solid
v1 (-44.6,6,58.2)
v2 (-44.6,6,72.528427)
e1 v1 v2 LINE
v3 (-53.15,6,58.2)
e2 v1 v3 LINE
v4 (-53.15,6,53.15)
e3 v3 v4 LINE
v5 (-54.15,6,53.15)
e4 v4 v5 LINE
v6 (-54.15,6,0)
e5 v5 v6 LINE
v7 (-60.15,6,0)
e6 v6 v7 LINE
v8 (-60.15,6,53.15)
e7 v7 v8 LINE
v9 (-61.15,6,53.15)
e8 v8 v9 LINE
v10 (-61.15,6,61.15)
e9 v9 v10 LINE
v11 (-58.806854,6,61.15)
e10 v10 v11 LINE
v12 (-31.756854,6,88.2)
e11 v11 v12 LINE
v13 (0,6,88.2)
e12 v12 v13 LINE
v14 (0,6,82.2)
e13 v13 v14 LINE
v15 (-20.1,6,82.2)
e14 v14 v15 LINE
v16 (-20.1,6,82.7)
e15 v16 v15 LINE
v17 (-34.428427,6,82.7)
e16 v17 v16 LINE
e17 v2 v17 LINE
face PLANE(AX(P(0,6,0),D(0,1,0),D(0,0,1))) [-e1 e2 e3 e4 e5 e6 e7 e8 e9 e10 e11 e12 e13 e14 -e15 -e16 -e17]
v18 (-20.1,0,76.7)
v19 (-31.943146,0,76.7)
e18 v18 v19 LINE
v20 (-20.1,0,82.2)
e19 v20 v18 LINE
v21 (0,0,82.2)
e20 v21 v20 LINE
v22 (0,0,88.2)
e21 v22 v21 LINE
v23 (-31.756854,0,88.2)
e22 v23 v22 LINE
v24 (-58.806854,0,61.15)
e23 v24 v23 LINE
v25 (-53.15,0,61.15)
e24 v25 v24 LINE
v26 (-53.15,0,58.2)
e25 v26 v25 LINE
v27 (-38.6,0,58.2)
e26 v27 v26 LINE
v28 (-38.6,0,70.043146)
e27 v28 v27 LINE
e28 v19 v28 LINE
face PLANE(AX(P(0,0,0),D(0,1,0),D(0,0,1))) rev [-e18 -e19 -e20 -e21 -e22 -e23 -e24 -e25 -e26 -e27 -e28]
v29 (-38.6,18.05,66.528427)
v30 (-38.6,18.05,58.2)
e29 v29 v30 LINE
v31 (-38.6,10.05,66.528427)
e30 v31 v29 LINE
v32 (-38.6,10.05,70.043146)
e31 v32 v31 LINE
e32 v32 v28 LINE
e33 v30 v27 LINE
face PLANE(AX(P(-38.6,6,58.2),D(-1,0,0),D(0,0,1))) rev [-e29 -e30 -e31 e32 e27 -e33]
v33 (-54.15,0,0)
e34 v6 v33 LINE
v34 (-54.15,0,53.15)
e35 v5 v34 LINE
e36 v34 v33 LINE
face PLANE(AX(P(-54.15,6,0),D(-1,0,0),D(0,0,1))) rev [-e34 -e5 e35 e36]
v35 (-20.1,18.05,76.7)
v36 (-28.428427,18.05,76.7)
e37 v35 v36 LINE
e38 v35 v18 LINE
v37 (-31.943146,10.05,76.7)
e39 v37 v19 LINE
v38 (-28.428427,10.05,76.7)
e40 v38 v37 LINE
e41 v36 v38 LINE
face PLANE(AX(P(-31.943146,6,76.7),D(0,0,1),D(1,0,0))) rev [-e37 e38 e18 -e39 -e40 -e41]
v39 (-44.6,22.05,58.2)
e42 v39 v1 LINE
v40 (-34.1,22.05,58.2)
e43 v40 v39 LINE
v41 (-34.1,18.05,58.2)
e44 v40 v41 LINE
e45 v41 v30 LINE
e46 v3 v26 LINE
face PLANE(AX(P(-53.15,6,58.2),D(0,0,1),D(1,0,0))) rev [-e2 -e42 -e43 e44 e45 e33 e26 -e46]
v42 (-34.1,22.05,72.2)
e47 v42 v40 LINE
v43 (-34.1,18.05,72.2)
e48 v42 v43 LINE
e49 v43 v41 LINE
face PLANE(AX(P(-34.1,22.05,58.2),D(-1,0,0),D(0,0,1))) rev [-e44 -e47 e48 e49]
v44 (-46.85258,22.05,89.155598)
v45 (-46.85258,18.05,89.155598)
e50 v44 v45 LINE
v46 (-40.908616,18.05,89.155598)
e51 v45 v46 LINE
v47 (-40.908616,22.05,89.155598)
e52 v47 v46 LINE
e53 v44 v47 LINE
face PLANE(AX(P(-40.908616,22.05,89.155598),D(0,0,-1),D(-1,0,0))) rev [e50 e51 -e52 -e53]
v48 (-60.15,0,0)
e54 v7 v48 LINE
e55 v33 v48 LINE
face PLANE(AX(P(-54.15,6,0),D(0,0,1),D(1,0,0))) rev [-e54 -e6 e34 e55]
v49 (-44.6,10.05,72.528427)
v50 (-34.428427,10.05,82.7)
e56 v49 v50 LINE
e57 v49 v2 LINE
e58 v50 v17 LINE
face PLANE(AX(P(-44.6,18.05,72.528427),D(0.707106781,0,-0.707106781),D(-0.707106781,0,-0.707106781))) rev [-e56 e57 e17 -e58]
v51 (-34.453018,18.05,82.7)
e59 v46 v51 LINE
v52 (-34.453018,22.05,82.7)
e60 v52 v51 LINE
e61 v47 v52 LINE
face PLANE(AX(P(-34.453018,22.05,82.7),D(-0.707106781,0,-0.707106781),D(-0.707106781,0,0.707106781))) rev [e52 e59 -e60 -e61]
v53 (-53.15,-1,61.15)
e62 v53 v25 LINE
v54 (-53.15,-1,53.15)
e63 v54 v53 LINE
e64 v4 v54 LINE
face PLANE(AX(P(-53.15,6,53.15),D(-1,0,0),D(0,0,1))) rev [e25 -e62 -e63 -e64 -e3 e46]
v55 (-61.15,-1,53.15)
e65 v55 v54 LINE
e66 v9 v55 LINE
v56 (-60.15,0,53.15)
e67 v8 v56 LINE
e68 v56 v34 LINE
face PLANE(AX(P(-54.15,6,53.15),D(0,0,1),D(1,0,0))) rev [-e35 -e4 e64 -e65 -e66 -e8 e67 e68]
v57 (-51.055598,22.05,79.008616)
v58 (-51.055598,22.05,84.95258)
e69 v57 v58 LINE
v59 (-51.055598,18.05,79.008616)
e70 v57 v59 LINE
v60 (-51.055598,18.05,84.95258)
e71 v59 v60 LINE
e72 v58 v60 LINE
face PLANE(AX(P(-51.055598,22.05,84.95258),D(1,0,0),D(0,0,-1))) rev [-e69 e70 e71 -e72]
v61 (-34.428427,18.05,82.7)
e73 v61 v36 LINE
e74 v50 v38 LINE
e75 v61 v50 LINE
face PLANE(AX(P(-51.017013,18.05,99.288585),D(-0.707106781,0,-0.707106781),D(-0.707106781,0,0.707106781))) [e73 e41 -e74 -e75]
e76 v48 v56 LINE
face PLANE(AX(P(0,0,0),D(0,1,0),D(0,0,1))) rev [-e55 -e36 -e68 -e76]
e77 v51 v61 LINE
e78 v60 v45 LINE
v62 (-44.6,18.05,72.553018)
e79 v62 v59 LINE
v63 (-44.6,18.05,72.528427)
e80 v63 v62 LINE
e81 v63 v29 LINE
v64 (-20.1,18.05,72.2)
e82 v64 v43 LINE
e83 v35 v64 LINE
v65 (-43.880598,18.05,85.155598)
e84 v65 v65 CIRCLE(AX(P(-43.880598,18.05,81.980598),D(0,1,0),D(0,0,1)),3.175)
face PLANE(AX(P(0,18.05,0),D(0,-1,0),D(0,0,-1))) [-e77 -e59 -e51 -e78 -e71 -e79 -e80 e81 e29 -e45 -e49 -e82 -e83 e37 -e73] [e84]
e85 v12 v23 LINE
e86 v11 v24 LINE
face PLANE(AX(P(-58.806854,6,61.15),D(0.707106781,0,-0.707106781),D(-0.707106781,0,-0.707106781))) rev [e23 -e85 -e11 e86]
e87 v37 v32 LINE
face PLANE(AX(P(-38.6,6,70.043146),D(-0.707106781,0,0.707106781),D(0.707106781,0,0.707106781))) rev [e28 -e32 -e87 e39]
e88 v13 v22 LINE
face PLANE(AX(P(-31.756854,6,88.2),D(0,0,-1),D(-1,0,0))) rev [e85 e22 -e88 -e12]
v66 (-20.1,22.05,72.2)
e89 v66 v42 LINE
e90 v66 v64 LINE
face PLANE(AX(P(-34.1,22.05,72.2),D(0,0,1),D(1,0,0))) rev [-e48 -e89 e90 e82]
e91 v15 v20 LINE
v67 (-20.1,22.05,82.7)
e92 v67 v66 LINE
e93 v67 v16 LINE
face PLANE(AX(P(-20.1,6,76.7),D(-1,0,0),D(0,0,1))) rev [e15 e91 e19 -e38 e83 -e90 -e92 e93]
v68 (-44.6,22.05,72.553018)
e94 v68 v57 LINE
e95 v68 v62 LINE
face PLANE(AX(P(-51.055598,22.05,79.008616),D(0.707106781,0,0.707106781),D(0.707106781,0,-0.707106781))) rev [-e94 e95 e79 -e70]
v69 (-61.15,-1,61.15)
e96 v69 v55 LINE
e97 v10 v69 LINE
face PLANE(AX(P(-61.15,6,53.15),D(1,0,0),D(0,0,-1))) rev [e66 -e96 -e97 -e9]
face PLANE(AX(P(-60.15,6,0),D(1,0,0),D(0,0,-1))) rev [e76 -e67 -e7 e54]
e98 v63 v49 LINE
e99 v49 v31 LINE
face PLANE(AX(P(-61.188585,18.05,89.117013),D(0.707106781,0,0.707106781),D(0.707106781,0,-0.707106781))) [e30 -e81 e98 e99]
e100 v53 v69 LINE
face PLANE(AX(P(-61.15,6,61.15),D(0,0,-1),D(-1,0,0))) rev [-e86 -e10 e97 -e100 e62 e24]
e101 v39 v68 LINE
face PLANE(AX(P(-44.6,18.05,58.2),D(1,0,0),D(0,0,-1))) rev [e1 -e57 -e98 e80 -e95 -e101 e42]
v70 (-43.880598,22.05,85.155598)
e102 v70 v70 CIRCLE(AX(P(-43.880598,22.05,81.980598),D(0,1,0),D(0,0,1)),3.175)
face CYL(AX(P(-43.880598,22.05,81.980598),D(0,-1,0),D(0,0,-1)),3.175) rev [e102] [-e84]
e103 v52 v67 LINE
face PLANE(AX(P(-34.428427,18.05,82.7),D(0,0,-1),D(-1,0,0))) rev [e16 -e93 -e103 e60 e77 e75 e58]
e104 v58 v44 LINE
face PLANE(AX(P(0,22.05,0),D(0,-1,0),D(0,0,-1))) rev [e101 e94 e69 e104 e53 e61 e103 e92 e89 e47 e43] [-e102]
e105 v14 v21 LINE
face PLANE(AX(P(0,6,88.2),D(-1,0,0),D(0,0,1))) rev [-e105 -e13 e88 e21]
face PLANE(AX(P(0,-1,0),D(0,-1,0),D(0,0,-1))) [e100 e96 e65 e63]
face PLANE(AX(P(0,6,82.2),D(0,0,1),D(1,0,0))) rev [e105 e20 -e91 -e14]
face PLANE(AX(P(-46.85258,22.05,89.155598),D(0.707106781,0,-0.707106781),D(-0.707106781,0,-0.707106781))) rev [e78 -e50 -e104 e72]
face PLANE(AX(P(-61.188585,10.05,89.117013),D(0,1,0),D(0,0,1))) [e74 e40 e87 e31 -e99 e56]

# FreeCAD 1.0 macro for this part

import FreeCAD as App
import Part
import Sketcher
Q = App.Units.Quantity

doc = App.newDocument("Part")
body = doc.addObject("PartDesign::Body", "Body")

# Sketch on XZ plane
sketch1 = body.newObject("Sketcher::SketchObject", "Sketch")
sketch1.AttachmentSupport = (doc.getObject("XZ_Plane"), [""])
sketch1.MapMode = "FlatFace"
sketch1.addGeometry(Part.LineSegment(App.Vector(-54.15, 0, 0), App.Vector(-60.15, 0, 0)), False)
sketch1.addGeometry(Part.LineSegment(App.Vector(-60.15, 0, 0), App.Vector(-60.15, 53.15, 0)), False)
sketch1.addGeometry(Part.LineSegment(App.Vector(-60.15, 53.15, 0), App.Vector(-61.15, 53.15, 0)), False)
sketch1.addGeometry(Part.LineSegment(App.Vector(-61.15, 53.15, 0), App.Vector(-61.15, 61.15, 0)), False)
sketch1.addGeometry(Part.LineSegment(App.Vector(-61.15, 61.15, 0), App.Vector(-58.806854, 61.15, 0)), False)
sketch1.addGeometry(Part.LineSegment(App.Vector(-58.806854, 61.15, 0), App.Vector(-31.756854, 88.2, 0)), False)
sketch1.addGeometry(Part.LineSegment(App.Vector(-31.756854, 88.2, 0), App.Vector(0, 88.2, 0)), False)
sketch1.addGeometry(Part.LineSegment(App.Vector(0, 88.2, 0), App.Vector(0, 82.2, 0)), False)
sketch1.addGeometry(Part.LineSegment(App.Vector(0, 82.2, 0), App.Vector(-20.1, 82.2, 0)), False)
sketch1.addGeometry(Part.LineSegment(App.Vector(-20.1, 82.2, 0), App.Vector(-20.1, 76.7, 0)), False)
sketch1.addGeometry(Part.LineSegment(App.Vector(-20.1, 76.7, 0), App.Vector(-31.943146, 76.7, 0)), False)
sketch1.addGeometry(Part.LineSegment(App.Vector(-31.943146, 76.7, 0), App.Vector(-38.6, 70.043146, 0)), False)
sketch1.addGeometry(Part.LineSegment(App.Vector(-38.6, 70.043146, 0), App.Vector(-38.6, 58.2, 0)), False)
sketch1.addGeometry(Part.LineSegment(App.Vector(-38.6, 58.2, 0), App.Vector(-53.15, 58.2, 0)), False)
sketch1.addGeometry(Part.LineSegment(App.Vector(-53.15, 58.2, 0), App.Vector(-53.15, 53.15, 0)), False)
sketch1.addGeometry(Part.LineSegment(App.Vector(-53.15, 53.15, 0), App.Vector(-54.15, 53.15, 0)), False)
sketch1.addGeometry(Part.LineSegment(App.Vector(-54.15, 53.15, 0), App.Vector(-54.15, 0, 0)), False)
sketch1.addConstraint(Sketcher.Constraint("Coincident", 0, 2, 1, 1))
sketch1.addConstraint(Sketcher.Constraint("Coincident", 1, 2, 2, 1))
sketch1.addConstraint(Sketcher.Constraint("Coincident", 2, 2, 3, 1))
sketch1.addConstraint(Sketcher.Constraint("Coincident", 3, 2, 4, 1))
sketch1.addConstraint(Sketcher.Constraint("Coincident", 4, 2, 5, 1))
sketch1.addConstraint(Sketcher.Constraint("Coincident", 5, 2, 6, 1))
sketch1.addConstraint(Sketcher.Constraint("Coincident", 6, 2, 7, 1))
sketch1.addConstraint(Sketcher.Constraint("Coincident", 7, 2, 8, 1))
sketch1.addConstraint(Sketcher.Constraint("Coincident", 8, 2, 9, 1))
sketch1.addConstraint(Sketcher.Constraint("Coincident", 9, 2, 10, 1))
sketch1.addConstraint(Sketcher.Constraint("Coincident", 10, 2, 11, 1))
sketch1.addConstraint(Sketcher.Constraint("Coincident", 11, 2, 12, 1))
sketch1.addConstraint(Sketcher.Constraint("Coincident", 12, 2, 13, 1))
sketch1.addConstraint(Sketcher.Constraint("Coincident", 13, 2, 14, 1))
sketch1.addConstraint(Sketcher.Constraint("Coincident", 14, 2, 15, 1))
sketch1.addConstraint(Sketcher.Constraint("Coincident", 15, 2, 16, 1))
sketch1.addConstraint(Sketcher.Constraint("Coincident", 16, 2, 0, 1))
sketch1.addConstraint(Sketcher.Constraint("Horizontal", 0))
sketch1.addConstraint(Sketcher.Constraint("Vertical", 1))
sketch1.addConstraint(Sketcher.Constraint("Horizontal", 2))
sketch1.addConstraint(Sketcher.Constraint("Vertical", 3))
sketch1.addConstraint(Sketcher.Constraint("Horizontal", 4))
sketch1.addConstraint(Sketcher.Constraint("Horizontal", 6))
sketch1.addConstraint(Sketcher.Constraint("Vertical", 7))
sketch1.addConstraint(Sketcher.Constraint("Horizontal", 8))
sketch1.addConstraint(Sketcher.Constraint("Vertical", 9))
sketch1.addConstraint(Sketcher.Constraint("Horizontal", 10))
sketch1.addConstraint(Sketcher.Constraint("Vertical", 12))
sketch1.addConstraint(Sketcher.Constraint("Horizontal", 13))
sketch1.addConstraint(Sketcher.Constraint("Vertical", 14))
sketch1.addConstraint(Sketcher.Constraint("Horizontal", 15))
sketch1.addConstraint(Sketcher.Constraint("Vertical", 16))
sketch1.addConstraint(Sketcher.Constraint("PointOnObject", 0, 2, -1))
sketch1.addConstraint(Sketcher.Constraint("PointOnObject", 6, 2, -2))
sketch1.addConstraint(Sketcher.Constraint("Parallel", 5, 11))
sketch1.addConstraint(Sketcher.Constraint("Horizontal", 2, 2, 14, 2))
sketch1.addConstraint(Sketcher.Constraint("Equal", 2, 15))
sketch1.addConstraint(Sketcher.Constraint("Equal", 0, 7))
sketch1.addConstraint(Sketcher.Constraint("Equal", 10, 12))
sketch1.addConstraint(Sketcher.Constraint("DistanceX", 0, 2, 0, 1, 6.0))
sketch1.addConstraint(Sketcher.Constraint("DistanceX", 2, 2, 2, 1, 1.0))
sketch1.addConstraint(Sketcher.Constraint("DistanceY", 3, 1, 3, 2, 8.0))
sketch1.addConstraint(Sketcher.Constraint("Angle", 5, Q("45 deg")))
sketch1.addConstraint(Sketcher.Constraint("DistanceX", 8, 2, 8, 1, 20.1))
sketch1.addConstraint(Sketcher.Constraint("DistanceY", 9, 2, 9, 1, 5.5))
sketch1.addConstraint(Sketcher.Constraint("DistanceX", 13, 2, 13, 1, 14.55))
sketch1.addConstraint(Sketcher.Constraint("DistanceY", 1, 1, 1, 2, 53.15))
sketch1.addConstraint(Sketcher.Constraint("DistanceY", 14, 2, 14, 1, 5.05))
sketch1.addConstraint(Sketcher.Constraint("DistanceY", -1, 1, 5, 2, 88.2))
sketch1.addConstraint(Sketcher.Constraint("DistanceX", 4, 1, 4, 2, 2.343146))
sketch1.addConstraint(Sketcher.Constraint("DistanceX", 10, 2, 10, 1, 11.843146))
pad1 = body.newObject("PartDesign::Pad", "Pad")
pad1.Profile = sketch1
pad1.Length = 6
pad1.Reversed = True

# Sketch on XZ plane
sketch2 = body.newObject("Sketcher::SketchObject", "Sketch001")
sketch2.AttachmentSupport = (doc.getObject("XZ_Plane"), [""])
sketch2.MapMode = "FlatFace"
sketch2.addGeometry(Part.LineSegment(App.Vector(-53.15, 53.15, 0), App.Vector(-53.15, 61.15, 0)), False)
sketch2.addGeometry(Part.LineSegment(App.Vector(-53.15, 61.15, 0), App.Vector(-61.15, 61.15, 0)), False)
sketch2.addGeometry(Part.LineSegment(App.Vector(-61.15, 61.15, 0), App.Vector(-61.15, 53.15, 0)), False)
sketch2.addGeometry(Part.LineSegment(App.Vector(-61.15, 53.15, 0), App.Vector(-53.15, 53.15, 0)), False)
sketch2.addConstraint(Sketcher.Constraint("Coincident", 0, 2, 1, 1))
sketch2.addConstraint(Sketcher.Constraint("Coincident", 1, 2, 2, 1))
sketch2.addConstraint(Sketcher.Constraint("Coincident", 2, 2, 3, 1))
sketch2.addConstraint(Sketcher.Constraint("Coincident", 3, 2, 0, 1))
sketch2.addConstraint(Sketcher.Constraint("Vertical", 0))
sketch2.addConstraint(Sketcher.Constraint("Horizontal", 1))
sketch2.addConstraint(Sketcher.Constraint("Vertical", 2))
sketch2.addConstraint(Sketcher.Constraint("Horizontal", 3))
sketch2.addConstraint(Sketcher.Constraint("Equal", 3, 0))
sketch2.addConstraint(Sketcher.Constraint("DistanceX", 1, 2, 1, 1, 8.0))
sketch2.addConstraint(Sketcher.Constraint("DistanceX", 0, 2, -1, 1, 53.15))
sketch2.addConstraint(Sketcher.Constraint("DistanceY", -1, 1, 0, 2, 61.15))
pad2 = body.newObject("PartDesign::Pad", "Pad001")
pad2.Profile = sketch2
pad2.Length = 1

# Sketch on XZ plane
sketch3 = body.newObject("Sketcher::SketchObject", "Sketch002")
sketch3.AttachmentSupport = (doc.getObject("XZ_Plane"), [""])
sketch3.MapMode = "FlatFace"
sketch3.AttachmentOffset = App.Placement(App.Vector(0, 0, -6), App.Rotation())
sketch3.addGeometry(Part.LineSegment(App.Vector(-38.6, 58.2, 0), App.Vector(-44.6, 58.2, 0)), False)
sketch3.addGeometry(Part.LineSegment(App.Vector(-44.6, 58.2, 0), App.Vector(-44.6, 72.528427, 0)), False)
sketch3.addGeometry(Part.LineSegment(App.Vector(-44.6, 72.528427, 0), App.Vector(-34.428427, 82.7, 0)), False)
sketch3.addGeometry(Part.LineSegment(App.Vector(-34.428427, 82.7, 0), App.Vector(-20.1, 82.7, 0)), False)
sketch3.addGeometry(Part.LineSegment(App.Vector(-20.1, 82.7, 0), App.Vector(-20.1, 76.7, 0)), False)
sketch3.addGeometry(Part.LineSegment(App.Vector(-20.1, 76.7, 0), App.Vector(-31.943146, 76.7, 0)), False)
sketch3.addGeometry(Part.LineSegment(App.Vector(-31.943146, 76.7, 0), App.Vector(-38.6, 70.043146, 0)), False)
sketch3.addGeometry(Part.LineSegment(App.Vector(-38.6, 70.043146, 0), App.Vector(-38.6, 58.2, 0)), False)
sketch3.addConstraint(Sketcher.Constraint("Coincident", 0, 2, 1, 1))
sketch3.addConstraint(Sketcher.Constraint("Coincident", 1, 2, 2, 1))
sketch3.addConstraint(Sketcher.Constraint("Coincident", 2, 2, 3, 1))
sketch3.addConstraint(Sketcher.Constraint("Coincident", 3, 2, 4, 1))
sketch3.addConstraint(Sketcher.Constraint("Coincident", 4, 2, 5, 1))
sketch3.addConstraint(Sketcher.Constraint("Coincident", 5, 2, 6, 1))
sketch3.addConstraint(Sketcher.Constraint("Coincident", 6, 2, 7, 1))
sketch3.addConstraint(Sketcher.Constraint("Coincident", 7, 2, 0, 1))
sketch3.addConstraint(Sketcher.Constraint("Horizontal", 0))
sketch3.addConstraint(Sketcher.Constraint("Vertical", 1))
sketch3.addConstraint(Sketcher.Constraint("Horizontal", 3))
sketch3.addConstraint(Sketcher.Constraint("Vertical", 4))
sketch3.addConstraint(Sketcher.Constraint("Horizontal", 5))
sketch3.addConstraint(Sketcher.Constraint("Vertical", 7))
sketch3.addConstraint(Sketcher.Constraint("Parallel", 2, 6))
sketch3.addConstraint(Sketcher.Constraint("Equal", 3, 1))
sketch3.addConstraint(Sketcher.Constraint("Equal", 0, 4))
sketch3.addConstraint(Sketcher.Constraint("Equal", 5, 7))
sketch3.addConstraint(Sketcher.Constraint("DistanceX", 0, 2, 0, 1, 6.0))
sketch3.addConstraint(Sketcher.Constraint("DistanceX", 0, 2, -1, 1, 44.6))
sketch3.addConstraint(Sketcher.Constraint("DistanceY", -1, 1, 0, 2, 58.2))
sketch3.addConstraint(Sketcher.Constraint("DistanceY", -1, 1, 2, 2, 82.7))
sketch3.addConstraint(Sketcher.Constraint("DistanceX", 3, 1, 3, 2, 14.328427))
sketch3.addConstraint(Sketcher.Constraint("DistanceX", 5, 2, 5, 1, 11.843146))
pad3 = body.newObject("PartDesign::Pad", "Pad002")
pad3.Profile = sketch3
pad3.Length = 12.05
pad3.Reversed = True

# Sketch on XZ plane
sketch4 = body.newObject("Sketcher::SketchObject", "Sketch003")
sketch4.AttachmentSupport = (doc.getObject("XZ_Plane"), [""])
sketch4.MapMode = "FlatFace"
sketch4.AttachmentOffset = App.Placement(App.Vector(0, 0, -18.05), App.Rotation())
sketch4.addGeometry(Part.LineSegment(App.Vector(-34.1, 58.2, 0), App.Vector(-44.6, 58.2, 0)), False)
sketch4.addGeometry(Part.LineSegment(App.Vector(-44.6, 58.2, 0), App.Vector(-44.6, 72.553018, 0)), False)
sketch4.addGeometry(Part.LineSegment(App.Vector(-44.6, 72.553018, 0), App.Vector(-51.055598, 79.008616, 0)), False)
sketch4.addGeometry(Part.LineSegment(App.Vector(-51.055598, 79.008616, 0), App.Vector(-51.055598, 84.95258, 0)), False)
sketch4.addGeometry(Part.LineSegment(App.Vector(-51.055598, 84.95258, 0), App.Vector(-46.85258, 89.155598, 0)), False)
sketch4.addGeometry(Part.LineSegment(App.Vector(-46.85258, 89.155598, 0), App.Vector(-40.908616, 89.155598, 0)), False)
sketch4.addGeometry(Part.LineSegment(App.Vector(-40.908616, 89.155598, 0), App.Vector(-34.453018, 82.7, 0)), False)
sketch4.addGeometry(Part.LineSegment(App.Vector(-34.453018, 82.7, 0), App.Vector(-20.1, 82.7, 0)), False)
sketch4.addGeometry(Part.LineSegment(App.Vector(-20.1, 82.7, 0), App.Vector(-20.1, 72.2, 0)), False)
sketch4.addGeometry(Part.LineSegment(App.Vector(-20.1, 72.2, 0), App.Vector(-34.1, 72.2, 0)), False)
sketch4.addGeometry(Part.LineSegment(App.Vector(-34.1, 72.2, 0), App.Vector(-34.1, 58.2, 0)), False)
sketch4.addGeometry(Part.Circle(App.Vector(-43.880598, 81.980598, 0), App.Vector(0, 0, 1), 3.175), False)
sketch4.addConstraint(Sketcher.Constraint("Coincident", 0, 2, 1, 1))
sketch4.addConstraint(Sketcher.Constraint("Coincident", 1, 2, 2, 1))
sketch4.addConstraint(Sketcher.Constraint("Coincident", 2, 2, 3, 1))
sketch4.addConstraint(Sketcher.Constraint("Coincident", 3, 2, 4, 1))
sketch4.addConstraint(Sketcher.Constraint("Coincident", 4, 2, 5, 1))
sketch4.addConstraint(Sketcher.Constraint("Coincident", 5, 2, 6, 1))
sketch4.addConstraint(Sketcher.Constraint("Coincident", 6, 2, 7, 1))
sketch4.addConstraint(Sketcher.Constraint("Coincident", 7, 2, 8, 1))
sketch4.addConstraint(Sketcher.Constraint("Coincident", 8, 2, 9, 1))
sketch4.addConstraint(Sketcher.Constraint("Coincident", 9, 2, 10, 1))
sketch4.addConstraint(Sketcher.Constraint("Coincident", 10, 2, 0, 1))
sketch4.addConstraint(Sketcher.Constraint("Horizontal", 0))
sketch4.addConstraint(Sketcher.Constraint("Vertical", 1))
sketch4.addConstraint(Sketcher.Constraint("Vertical", 3))
sketch4.addConstraint(Sketcher.Constraint("Horizontal", 5))
sketch4.addConstraint(Sketcher.Constraint("Horizontal", 7))
sketch4.addConstraint(Sketcher.Constraint("Vertical", 8))
sketch4.addConstraint(Sketcher.Constraint("Horizontal", 9))
sketch4.addConstraint(Sketcher.Constraint("Vertical", 10))
sketch4.addConstraint(Sketcher.Constraint("Perpendicular", 2, 4))
sketch4.addConstraint(Sketcher.Constraint("Perpendicular", 4, 6))
sketch4.addConstraint(Sketcher.Constraint("Equal", 7, 1))
sketch4.addConstraint(Sketcher.Constraint("Equal", 5, 3))
sketch4.addConstraint(Sketcher.Constraint("Equal", 0, 8))
sketch4.addConstraint(Sketcher.Constraint("Equal", 9, 10))
sketch4.addConstraint(Sketcher.Constraint("Equal", 2, 6))
sketch4.addConstraint(Sketcher.Constraint("Diameter", 11, 6.35))
sketch4.addConstraint(Sketcher.Constraint("DistanceX", 9, 2, 9, 1, 14.0))
sketch4.addConstraint(Sketcher.Constraint("DistanceX", 0, 2, 0, 1, 10.5))
sketch4.addConstraint(Sketcher.Constraint("DistanceX", 0, 2, -1, 1, 44.6))
sketch4.addConstraint(Sketcher.Constraint("DistanceY", -1, 1, 0, 2, 58.2))
sketch4.addConstraint(Sketcher.Constraint("DistanceX", 2, 2, 11, 3, 7.175))
sketch4.addConstraint(Sketcher.Constraint("DistanceY", 11, 3, 4, 2, 7.175))
sketch4.addConstraint(Sketcher.Constraint("DistanceX", 5, 1, 5, 2, 5.943965))
sketch4.addConstraint(Sketcher.Constraint("DistanceX", 7, 1, 7, 2, 14.353018))
sketch4.addConstraint(Sketcher.Constraint("DistanceY", -1, 1, 3, 2, 84.95258))
pad4 = body.newObject("PartDesign::Pad", "Pad003")
pad4.Profile = sketch4
pad4.Length = 4
pad4.Reversed = True

# Sketch on an angled plane
sketch5 = body.newObject("Sketcher::SketchObject", "Sketch004")
sketch5.Placement = App.Placement(App.Vector(-58.564214, 0, 58.564214), App.Rotation(App.Vector(0.707106781, 0, 0.707106781), App.Vector(0, 0.999999999, 0), App.Vector(-0.707106781, 0, 0.707106781), "ZXY"))
sketch5.addGeometry(Part.LineSegment(App.Vector(19.74838, 18.05, 0), App.Vector(19.74838, 10.05, 0)), False)
sketch5.addGeometry(Part.LineSegment(App.Vector(19.74838, 10.05, 0), App.Vector(34.133157, 10.05, 0)), False)
sketch5.addGeometry(Part.LineSegment(App.Vector(34.133157, 10.05, 0), App.Vector(34.133157, 18.05, 0)), False)
sketch5.addGeometry(Part.LineSegment(App.Vector(34.133157, 18.05, 0), App.Vector(19.74838, 18.05, 0)), False)
sketch5.addConstraint(Sketcher.Constraint("Coincident", 0, 2, 1, 1))
sketch5.addConstraint(Sketcher.Constraint("Coincident", 1, 2, 2, 1))
sketch5.addConstraint(Sketcher.Constraint("Coincident", 2, 2, 3, 1))
sketch5.addConstraint(Sketcher.Constraint("Coincident", 3, 2, 0, 1))
sketch5.addConstraint(Sketcher.Constraint("Vertical", 0))
sketch5.addConstraint(Sketcher.Constraint("Horizontal", 1))
sketch5.addConstraint(Sketcher.Constraint("Vertical", 2))
sketch5.addConstraint(Sketcher.Constraint("Horizontal", 3))
sketch5.addConstraint(Sketcher.Constraint("DistanceY", 0, 2, 0, 1, 8.0))
sketch5.addConstraint(Sketcher.Constraint("DistanceY", -1, 1, 0, 2, 10.05))
sketch5.addConstraint(Sketcher.Constraint("DistanceX", 1, 1, 1, 2, 14.384776))
sketch5.addConstraint(Sketcher.Constraint("DistanceX", -1, 1, 0, 2, 19.74838))
pocket1 = body.newObject("PartDesign::Pocket", "Pocket")
pocket1.Profile = sketch5
pocket1.Length = 8.485281

# Sketch on an angled plane
sketch6 = body.newObject("Sketcher::SketchObject", "Sketch005")
sketch6.Placement = App.Placement(App.Vector(-58.564214, 0, 58.564214), App.Rotation(App.Vector(0.707106781, 0, 0.707106781), App.Vector(0, 0.999999999, 0), App.Vector(-0.707106781, 0, 0.707106781), "ZXY"))
sketch6.addGeometry(Part.LineSegment(App.Vector(19.74838, 18.05, 0), App.Vector(19.74838, 10.05, 0)), False)
sketch6.addGeometry(Part.LineSegment(App.Vector(19.74838, 10.05, 0), App.Vector(34.133157, 10.05, 0)), False)
sketch6.addGeometry(Part.LineSegment(App.Vector(34.133157, 10.05, 0), App.Vector(34.133157, 18.05, 0)), False)
sketch6.addGeometry(Part.LineSegment(App.Vector(34.133157, 18.05, 0), App.Vector(19.74838, 18.05, 0)), False)
sketch6.addConstraint(Sketcher.Constraint("Coincident", 0, 2, 1, 1))
sketch6.addConstraint(Sketcher.Constraint("Coincident", 1, 2, 2, 1))
sketch6.addConstraint(Sketcher.Constraint("Coincident", 2, 2, 3, 1))
sketch6.addConstraint(Sketcher.Constraint("Coincident", 3, 2, 0, 1))
sketch6.addConstraint(Sketcher.Constraint("Vertical", 0))
sketch6.addConstraint(Sketcher.Constraint("Horizontal", 1))
sketch6.addConstraint(Sketcher.Constraint("Vertical", 2))
sketch6.addConstraint(Sketcher.Constraint("Horizontal", 3))
sketch6.addConstraint(Sketcher.Constraint("DistanceY", 0, 2, 0, 1, 8.0))
sketch6.addConstraint(Sketcher.Constraint("DistanceY", -1, 1, 0, 2, 10.05))
sketch6.addConstraint(Sketcher.Constraint("DistanceX", 1, 1, 1, 2, 14.384776))
sketch6.addConstraint(Sketcher.Constraint("DistanceX", -1, 1, 0, 2, 19.74838))
pocket2 = body.newObject("PartDesign::Pocket", "Pocket001")
pocket2.Profile = sketch6
pocket2.Length = 86.707273
pocket2.Reversed = True

doc.recompute()
